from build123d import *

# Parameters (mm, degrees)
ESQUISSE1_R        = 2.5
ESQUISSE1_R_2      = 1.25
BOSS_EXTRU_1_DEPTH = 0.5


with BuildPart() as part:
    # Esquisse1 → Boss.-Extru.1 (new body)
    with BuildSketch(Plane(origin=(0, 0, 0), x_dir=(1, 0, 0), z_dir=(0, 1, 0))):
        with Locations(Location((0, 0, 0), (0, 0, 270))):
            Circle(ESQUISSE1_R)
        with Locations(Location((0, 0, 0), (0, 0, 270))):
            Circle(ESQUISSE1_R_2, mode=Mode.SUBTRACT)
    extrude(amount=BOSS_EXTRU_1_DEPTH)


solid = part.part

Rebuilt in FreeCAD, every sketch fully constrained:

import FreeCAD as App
import Part
import Sketcher

V = App.Vector

doc = App.newDocument("Part")
body = doc.addObject("PartDesign::Body", "Body")

# Sketch on XZ plane
sketch1 = body.newObject("Sketcher::SketchObject", "Sketch")
sketch1.AttachmentSupport = (doc.getObject("XZ_Plane"), [""])
sketch1.MapMode = "FlatFace"
sketch1.addGeometry(Part.Circle(V(0, 0, 0), V(0, 0, 1), 2.5), False)
sketch1.addGeometry(Part.Circle(V(0, 0, 0), V(0, 0, 1), 1.25), False)
sketch1.addConstraint(Sketcher.Constraint("Coincident", 0, 3, -1, 1))
sketch1.addConstraint(Sketcher.Constraint("Coincident", 1, 3, -1, 1))
sketch1.addConstraint(Sketcher.Constraint("Diameter", 0, 5.0))
sketch1.addConstraint(Sketcher.Constraint("Diameter", 1, 2.5))
pad1 = body.newObject("PartDesign::Pad", "Pad")
pad1.Profile = sketch1
pad1.Length = 0.5
pad1.Reversed = True

doc.recompute()
